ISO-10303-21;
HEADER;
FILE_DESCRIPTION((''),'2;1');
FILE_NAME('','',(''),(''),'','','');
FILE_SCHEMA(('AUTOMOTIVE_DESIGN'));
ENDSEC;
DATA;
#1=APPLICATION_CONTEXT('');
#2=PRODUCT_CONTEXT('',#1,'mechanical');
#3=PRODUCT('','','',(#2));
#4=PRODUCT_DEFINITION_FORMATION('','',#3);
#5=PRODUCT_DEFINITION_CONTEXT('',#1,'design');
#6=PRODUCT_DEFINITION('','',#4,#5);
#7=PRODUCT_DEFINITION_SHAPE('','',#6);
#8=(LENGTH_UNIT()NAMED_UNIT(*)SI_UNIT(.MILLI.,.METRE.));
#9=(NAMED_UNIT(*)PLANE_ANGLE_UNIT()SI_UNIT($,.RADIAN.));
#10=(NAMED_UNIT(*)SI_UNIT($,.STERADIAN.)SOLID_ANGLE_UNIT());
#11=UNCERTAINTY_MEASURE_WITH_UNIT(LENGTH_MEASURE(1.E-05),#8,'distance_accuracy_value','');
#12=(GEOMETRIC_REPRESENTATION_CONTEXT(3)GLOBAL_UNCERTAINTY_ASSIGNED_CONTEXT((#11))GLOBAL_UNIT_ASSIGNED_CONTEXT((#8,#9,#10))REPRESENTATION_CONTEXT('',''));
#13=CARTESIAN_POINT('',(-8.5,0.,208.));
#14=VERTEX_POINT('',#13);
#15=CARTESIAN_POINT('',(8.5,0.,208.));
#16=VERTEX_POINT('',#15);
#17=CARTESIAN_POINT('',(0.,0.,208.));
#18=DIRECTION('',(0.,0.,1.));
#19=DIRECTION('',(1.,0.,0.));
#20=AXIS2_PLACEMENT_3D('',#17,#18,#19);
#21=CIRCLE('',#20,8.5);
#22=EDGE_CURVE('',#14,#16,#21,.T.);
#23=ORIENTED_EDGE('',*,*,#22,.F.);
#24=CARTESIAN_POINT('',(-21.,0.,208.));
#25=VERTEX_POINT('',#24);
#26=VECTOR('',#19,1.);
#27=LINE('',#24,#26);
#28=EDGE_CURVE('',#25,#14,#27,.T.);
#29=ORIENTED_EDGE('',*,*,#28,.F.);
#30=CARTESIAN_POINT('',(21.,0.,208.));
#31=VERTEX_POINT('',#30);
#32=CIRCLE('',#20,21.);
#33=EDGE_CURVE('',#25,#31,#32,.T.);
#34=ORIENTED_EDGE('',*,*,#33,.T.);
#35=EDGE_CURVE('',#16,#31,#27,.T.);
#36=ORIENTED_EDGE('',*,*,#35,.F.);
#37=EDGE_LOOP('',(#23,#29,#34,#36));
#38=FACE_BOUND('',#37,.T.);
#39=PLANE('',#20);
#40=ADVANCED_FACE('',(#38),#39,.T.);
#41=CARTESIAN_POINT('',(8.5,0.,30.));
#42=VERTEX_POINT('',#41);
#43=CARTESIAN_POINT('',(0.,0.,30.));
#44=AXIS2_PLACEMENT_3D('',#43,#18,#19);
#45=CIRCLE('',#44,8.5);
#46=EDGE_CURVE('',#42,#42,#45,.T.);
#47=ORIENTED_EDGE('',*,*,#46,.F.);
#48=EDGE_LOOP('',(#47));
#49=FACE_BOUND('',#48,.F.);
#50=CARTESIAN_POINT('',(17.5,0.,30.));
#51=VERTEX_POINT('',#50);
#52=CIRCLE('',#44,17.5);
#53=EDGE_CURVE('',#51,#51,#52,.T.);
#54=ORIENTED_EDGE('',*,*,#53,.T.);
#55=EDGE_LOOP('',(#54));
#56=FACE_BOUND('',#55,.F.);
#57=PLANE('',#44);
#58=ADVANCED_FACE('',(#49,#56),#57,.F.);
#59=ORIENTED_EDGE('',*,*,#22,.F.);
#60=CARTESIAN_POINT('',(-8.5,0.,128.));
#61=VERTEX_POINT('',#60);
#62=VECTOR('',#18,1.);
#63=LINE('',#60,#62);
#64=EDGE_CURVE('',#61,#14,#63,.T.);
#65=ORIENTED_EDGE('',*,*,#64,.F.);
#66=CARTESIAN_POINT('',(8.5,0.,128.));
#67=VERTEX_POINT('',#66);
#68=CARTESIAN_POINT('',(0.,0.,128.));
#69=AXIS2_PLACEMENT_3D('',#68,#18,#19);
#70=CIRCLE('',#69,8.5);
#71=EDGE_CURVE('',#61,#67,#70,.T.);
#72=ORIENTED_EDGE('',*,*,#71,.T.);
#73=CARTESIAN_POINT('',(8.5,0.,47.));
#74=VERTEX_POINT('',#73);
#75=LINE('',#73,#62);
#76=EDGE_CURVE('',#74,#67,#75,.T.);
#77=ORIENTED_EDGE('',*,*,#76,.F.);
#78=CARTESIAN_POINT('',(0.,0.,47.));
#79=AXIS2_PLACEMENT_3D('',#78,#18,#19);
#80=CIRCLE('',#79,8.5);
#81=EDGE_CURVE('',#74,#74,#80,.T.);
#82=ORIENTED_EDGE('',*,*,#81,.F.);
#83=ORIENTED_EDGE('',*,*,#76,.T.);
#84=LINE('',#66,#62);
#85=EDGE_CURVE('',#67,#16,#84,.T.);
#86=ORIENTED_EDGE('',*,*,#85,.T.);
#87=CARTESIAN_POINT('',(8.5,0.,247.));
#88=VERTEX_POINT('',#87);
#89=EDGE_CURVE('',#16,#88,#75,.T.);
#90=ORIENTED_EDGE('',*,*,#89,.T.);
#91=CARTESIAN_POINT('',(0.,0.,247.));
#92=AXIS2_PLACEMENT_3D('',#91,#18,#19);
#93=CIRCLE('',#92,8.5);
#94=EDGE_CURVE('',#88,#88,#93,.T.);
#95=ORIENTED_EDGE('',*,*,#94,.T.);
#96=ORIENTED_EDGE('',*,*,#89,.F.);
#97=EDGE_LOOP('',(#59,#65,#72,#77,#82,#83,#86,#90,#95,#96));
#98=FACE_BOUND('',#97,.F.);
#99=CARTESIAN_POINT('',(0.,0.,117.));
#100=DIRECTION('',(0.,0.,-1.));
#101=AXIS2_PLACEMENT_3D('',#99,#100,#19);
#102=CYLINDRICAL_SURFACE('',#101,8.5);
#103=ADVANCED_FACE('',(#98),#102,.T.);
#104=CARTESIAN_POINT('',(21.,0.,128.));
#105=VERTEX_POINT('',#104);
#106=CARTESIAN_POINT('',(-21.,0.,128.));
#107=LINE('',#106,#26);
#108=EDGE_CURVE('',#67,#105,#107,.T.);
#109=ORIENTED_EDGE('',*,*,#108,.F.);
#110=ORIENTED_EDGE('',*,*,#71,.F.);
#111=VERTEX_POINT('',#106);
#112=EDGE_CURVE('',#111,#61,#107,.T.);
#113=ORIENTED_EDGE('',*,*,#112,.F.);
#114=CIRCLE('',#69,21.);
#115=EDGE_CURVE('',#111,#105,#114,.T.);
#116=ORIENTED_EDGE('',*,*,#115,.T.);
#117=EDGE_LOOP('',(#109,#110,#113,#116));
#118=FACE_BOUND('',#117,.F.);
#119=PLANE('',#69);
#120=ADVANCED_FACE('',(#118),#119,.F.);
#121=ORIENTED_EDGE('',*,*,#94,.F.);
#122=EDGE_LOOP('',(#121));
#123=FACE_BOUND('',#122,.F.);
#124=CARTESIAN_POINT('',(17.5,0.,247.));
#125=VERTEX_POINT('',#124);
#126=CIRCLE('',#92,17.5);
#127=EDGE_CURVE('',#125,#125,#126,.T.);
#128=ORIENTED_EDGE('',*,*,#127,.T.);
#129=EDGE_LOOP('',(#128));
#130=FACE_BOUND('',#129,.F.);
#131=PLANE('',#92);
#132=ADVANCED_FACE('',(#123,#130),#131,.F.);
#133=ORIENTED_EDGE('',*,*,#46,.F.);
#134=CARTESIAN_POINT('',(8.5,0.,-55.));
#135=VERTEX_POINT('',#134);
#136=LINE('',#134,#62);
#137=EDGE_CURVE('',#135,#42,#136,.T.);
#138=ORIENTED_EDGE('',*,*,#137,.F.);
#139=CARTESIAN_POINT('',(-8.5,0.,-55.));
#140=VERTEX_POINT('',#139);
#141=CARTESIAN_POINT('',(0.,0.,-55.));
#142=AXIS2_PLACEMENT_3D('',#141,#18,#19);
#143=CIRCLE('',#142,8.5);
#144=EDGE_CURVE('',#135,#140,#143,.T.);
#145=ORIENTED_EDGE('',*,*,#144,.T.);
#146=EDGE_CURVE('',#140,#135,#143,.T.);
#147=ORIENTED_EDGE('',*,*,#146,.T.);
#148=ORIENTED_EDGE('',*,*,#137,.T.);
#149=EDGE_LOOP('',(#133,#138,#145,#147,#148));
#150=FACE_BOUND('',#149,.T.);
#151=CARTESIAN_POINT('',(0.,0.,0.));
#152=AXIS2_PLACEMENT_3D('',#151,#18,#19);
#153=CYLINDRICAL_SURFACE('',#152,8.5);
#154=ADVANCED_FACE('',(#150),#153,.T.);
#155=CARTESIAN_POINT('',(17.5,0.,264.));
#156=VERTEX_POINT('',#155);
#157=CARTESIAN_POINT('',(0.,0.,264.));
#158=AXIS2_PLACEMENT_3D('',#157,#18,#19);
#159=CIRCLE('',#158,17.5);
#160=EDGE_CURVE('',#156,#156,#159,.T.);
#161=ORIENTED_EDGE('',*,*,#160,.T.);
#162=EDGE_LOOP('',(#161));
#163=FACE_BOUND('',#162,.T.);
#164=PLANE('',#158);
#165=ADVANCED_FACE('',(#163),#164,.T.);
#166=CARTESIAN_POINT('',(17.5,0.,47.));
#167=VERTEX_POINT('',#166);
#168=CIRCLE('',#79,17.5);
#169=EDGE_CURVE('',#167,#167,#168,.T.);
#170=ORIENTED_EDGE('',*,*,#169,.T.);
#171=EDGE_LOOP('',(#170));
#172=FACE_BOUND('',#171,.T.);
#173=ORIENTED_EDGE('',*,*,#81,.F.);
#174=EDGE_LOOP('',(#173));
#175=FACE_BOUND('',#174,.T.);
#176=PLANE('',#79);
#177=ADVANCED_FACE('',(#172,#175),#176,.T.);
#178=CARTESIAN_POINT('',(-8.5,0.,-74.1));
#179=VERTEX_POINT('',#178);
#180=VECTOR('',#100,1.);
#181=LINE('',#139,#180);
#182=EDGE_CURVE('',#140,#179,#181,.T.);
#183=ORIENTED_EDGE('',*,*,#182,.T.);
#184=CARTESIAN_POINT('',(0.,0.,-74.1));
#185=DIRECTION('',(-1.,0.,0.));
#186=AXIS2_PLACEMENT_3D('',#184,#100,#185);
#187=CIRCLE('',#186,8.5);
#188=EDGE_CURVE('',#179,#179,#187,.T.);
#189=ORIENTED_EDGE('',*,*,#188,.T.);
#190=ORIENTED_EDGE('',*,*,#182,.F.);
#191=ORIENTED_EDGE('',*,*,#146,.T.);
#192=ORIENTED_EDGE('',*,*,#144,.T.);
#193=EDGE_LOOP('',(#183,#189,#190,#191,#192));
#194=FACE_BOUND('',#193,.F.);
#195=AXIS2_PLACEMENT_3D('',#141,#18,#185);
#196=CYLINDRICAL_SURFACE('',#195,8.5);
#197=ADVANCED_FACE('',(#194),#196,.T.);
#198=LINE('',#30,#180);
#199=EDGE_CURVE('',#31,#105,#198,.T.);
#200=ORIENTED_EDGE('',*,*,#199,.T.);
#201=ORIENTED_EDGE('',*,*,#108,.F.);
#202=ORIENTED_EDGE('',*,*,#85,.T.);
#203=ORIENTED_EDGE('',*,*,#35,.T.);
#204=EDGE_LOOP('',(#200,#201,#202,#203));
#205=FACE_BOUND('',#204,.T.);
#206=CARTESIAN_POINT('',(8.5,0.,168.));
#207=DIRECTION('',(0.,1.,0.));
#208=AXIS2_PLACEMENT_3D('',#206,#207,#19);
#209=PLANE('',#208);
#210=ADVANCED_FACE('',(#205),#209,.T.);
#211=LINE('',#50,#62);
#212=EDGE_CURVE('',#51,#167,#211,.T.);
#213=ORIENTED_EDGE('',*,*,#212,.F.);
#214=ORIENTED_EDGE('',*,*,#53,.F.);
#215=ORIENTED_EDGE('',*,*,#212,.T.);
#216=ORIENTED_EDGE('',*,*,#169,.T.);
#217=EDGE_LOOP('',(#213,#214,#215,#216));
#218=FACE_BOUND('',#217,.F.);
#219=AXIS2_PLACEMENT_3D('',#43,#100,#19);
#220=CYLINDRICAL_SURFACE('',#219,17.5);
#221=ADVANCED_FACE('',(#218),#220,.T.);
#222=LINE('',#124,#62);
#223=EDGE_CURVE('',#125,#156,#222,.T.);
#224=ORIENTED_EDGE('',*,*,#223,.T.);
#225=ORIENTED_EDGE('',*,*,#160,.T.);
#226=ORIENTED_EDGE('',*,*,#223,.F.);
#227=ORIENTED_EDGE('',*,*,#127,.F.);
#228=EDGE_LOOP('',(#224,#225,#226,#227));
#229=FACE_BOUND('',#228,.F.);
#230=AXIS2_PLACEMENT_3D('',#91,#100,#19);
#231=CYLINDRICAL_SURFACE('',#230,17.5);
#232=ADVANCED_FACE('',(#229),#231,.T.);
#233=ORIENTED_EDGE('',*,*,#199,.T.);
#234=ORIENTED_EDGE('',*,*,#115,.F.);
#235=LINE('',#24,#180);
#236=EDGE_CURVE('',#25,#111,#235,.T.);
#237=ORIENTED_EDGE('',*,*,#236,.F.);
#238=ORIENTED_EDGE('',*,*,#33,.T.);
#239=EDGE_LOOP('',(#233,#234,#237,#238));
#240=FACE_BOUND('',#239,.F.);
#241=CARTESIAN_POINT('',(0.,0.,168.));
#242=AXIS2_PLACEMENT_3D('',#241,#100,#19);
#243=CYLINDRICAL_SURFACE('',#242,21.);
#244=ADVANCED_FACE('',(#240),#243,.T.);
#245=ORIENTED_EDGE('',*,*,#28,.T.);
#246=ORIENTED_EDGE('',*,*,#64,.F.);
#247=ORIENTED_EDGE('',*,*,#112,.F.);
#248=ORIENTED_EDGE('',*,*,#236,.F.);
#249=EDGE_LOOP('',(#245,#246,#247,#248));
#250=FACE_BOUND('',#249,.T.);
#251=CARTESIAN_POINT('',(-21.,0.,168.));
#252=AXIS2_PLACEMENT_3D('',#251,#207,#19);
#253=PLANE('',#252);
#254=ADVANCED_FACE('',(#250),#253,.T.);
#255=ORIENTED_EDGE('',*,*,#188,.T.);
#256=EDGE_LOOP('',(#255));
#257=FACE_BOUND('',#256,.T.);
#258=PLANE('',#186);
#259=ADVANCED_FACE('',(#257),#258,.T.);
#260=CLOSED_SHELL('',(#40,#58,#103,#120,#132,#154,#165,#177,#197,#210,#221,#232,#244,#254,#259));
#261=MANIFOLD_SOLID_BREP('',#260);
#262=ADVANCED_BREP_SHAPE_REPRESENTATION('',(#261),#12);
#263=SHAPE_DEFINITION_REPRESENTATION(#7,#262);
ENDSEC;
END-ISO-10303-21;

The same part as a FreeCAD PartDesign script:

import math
import FreeCAD as App
import Part
import Sketcher

V = App.Vector
Q = App.Units.Quantity

doc = App.newDocument("Part")
body = doc.addObject("PartDesign::Body", "Body")

# Sketch on XY plane
sketch1 = body.newObject("Sketcher::SketchObject", "Sketch")
sketch1.AttachmentSupport = (doc.getObject("XY_Plane"), [""])
sketch1.MapMode = "FlatFace"
sketch1.addGeometry(Part.Circle(V(0, 0, 0), V(0, 0, 1), 8), False)
sketch1.addConstraint([
    Sketcher.Constraint("Coincident", 0, 3, -1, 1),
    Sketcher.Constraint("Diameter", 0, Q("17 mm")),
])
pad1 = body.newObject("PartDesign::Pad", "Pad")
pad1.Profile = sketch1
pad1.Length = 55
pad1.Reversed = True

# Sketch on XY plane
sketch2 = body.newObject("Sketcher::SketchObject", "Sketch001")
sketch2.AttachmentSupport = (doc.getObject("XY_Plane"), [""])
sketch2.MapMode = "FlatFace"
sketch2.addGeometry(Part.Circle(V(0, 0, 0), V(0, 0, 1), 8), False)
sketch2.addConstraint([
    Sketcher.Constraint("Coincident", 0, 3, -1, 1),
    Sketcher.Constraint("Diameter", 0, Q("17 mm")),
])
pad2 = body.newObject("PartDesign::Pad", "Pad001")
pad2.Profile = sketch2
pad2.Length = 30

# Sketch on XY plane
sketch3 = body.newObject("Sketcher::SketchObject", "Sketch002")
sketch3.AttachmentSupport = (doc.getObject("XY_Plane"), [""])
sketch3.MapMode = "FlatFace"
sketch3.AttachmentOffset = App.Placement(V(0, 0, 30), App.Rotation())
sketch3.addGeometry(Part.Circle(V(0, 0, 0), V(0, 0, 1), 18), False)
sketch3.addConstraint([
    Sketcher.Constraint("Coincident", 0, 3, -1, 1),
    Sketcher.Constraint("Diameter", 0, Q("35 mm")),
])
pad3 = body.newObject("PartDesign::Pad", "Pad002")
pad3.Profile = sketch3
pad3.Length = 17

# Sketch on XY plane
sketch4 = body.newObject("Sketcher::SketchObject", "Sketch003")
sketch4.AttachmentSupport = (doc.getObject("XY_Plane"), [""])
sketch4.MapMode = "FlatFace"
sketch4.AttachmentOffset = App.Placement(V(0, 0, 47), App.Rotation())
sketch4.addGeometry(Part.Circle(V(0, 0, 0), V(0, 0, 1), 8), False)
sketch4.addConstraint([
    Sketcher.Constraint("Coincident", 0, 3, -1, 1),
    Sketcher.Constraint("Diameter", 0, Q("17 mm")),
])
pad4 = body.newObject("PartDesign::Pad", "Pad003")
pad4.Profile = sketch4
pad4.Length = 15

# Sketch on XY plane
sketch5 = body.newObject("Sketcher::SketchObject", "Sketch004")
sketch5.AttachmentSupport = (doc.getObject("XY_Plane"), [""])
sketch5.MapMode = "FlatFace"
sketch5.AttachmentOffset = App.Placement(V(0, 0, 62), App.Rotation())
sketch5.addGeometry(Part.Circle(V(0, 0, 0), V(0, 0, 1), 8), False)
sketch5.addConstraint([
    Sketcher.Constraint("Coincident", 0, 3, -1, 1),
    Sketcher.Constraint("Diameter", 0, Q("17 mm")),
])
pad5 = body.newObject("PartDesign::Pad", "Pad004")
pad5.Profile = sketch5
pad5.Length = 55

# Sketch on XY plane
sketch6 = body.newObject("Sketcher::SketchObject", "Sketch005")
sketch6.AttachmentSupport = (doc.getObject("XY_Plane"), [""])
sketch6.MapMode = "FlatFace"
sketch6.AttachmentOffset = App.Placement(V(0, 0, 117), App.Rotation())
sketch6.addGeometry(Part.Circle(V(0, 0, 0), V(0, 0, 1), 8), False)
sketch6.addConstraint([
    Sketcher.Constraint("Coincident", 0, 3, -1, 1),
    Sketcher.Constraint("Diameter", 0, Q("17 mm")),
])
pad6 = body.newObject("PartDesign::Pad", "Pad005")
pad6.Profile = sketch6
pad6.Length = 130

# Sketch on XY plane
sketch7 = body.newObject("Sketcher::SketchObject", "Sketch006")
sketch7.AttachmentSupport = (doc.getObject("XY_Plane"), [""])
sketch7.MapMode = "FlatFace"
sketch7.AttachmentOffset = App.Placement(V(0, 0, 247), App.Rotation())
sketch7.addGeometry(Part.Circle(V(0, 0, 0), V(0, 0, 1), 18), False)
sketch7.addConstraint([
    Sketcher.Constraint("Coincident", 0, 3, -1, 1),
    Sketcher.Constraint("Diameter", 0, Q("35 mm")),
])
pad7 = body.newObject("PartDesign::Pad", "Pad006")
pad7.Profile = sketch7
pad7.Length = 17

# Sketch on XY plane
sketch8 = body.newObject("Sketcher::SketchObject", "Sketch007")
sketch8.AttachmentSupport = (doc.getObject("XY_Plane"), [""])
sketch8.MapMode = "FlatFace"
sketch8.AttachmentOffset = App.Placement(V(0, 0, -55), App.Rotation())
sketch8.addGeometry(Part.Circle(V(0, 0, 0), V(0, 0, 1), 8), False)
sketch8.addConstraint([
    Sketcher.Constraint("Coincident", 0, 3, -1, 1),
    Sketcher.Constraint("Diameter", 0, Q("17 mm")),
])
pad8 = body.newObject("PartDesign::Pad", "Pad007")
pad8.Profile = sketch8
pad8.Length = 19.1
pad8.Reversed = True

# Sketch on XY plane
sketch9 = body.newObject("Sketcher::SketchObject", "Sketch008")
sketch9.AttachmentSupport = (doc.getObject("XY_Plane"), [""])
sketch9.MapMode = "FlatFace"
sketch9.AttachmentOffset = App.Placement(V(0, 0, 168), App.Rotation())
sketch9.addGeometry([
    Part.LineSegment(V(21, 0, 0), V(8, 0, 0)),
    Part.ArcOfCircle(Part.Circle(V(0, 0, 0), V(0, 0, 1), 8), math.radians(180), math.radians(360)),
    Part.LineSegment(V(-8, 0, 0), V(-21, 0, 0)),
    Part.ArcOfCircle(Part.Circle(V(0, 0, 0), V(0, 0, 1), 21), math.radians(180), math.radians(360)),
], False)
sketch9.addConstraint([
    Sketcher.Constraint("Coincident", 0, 2, 1, 2),
    Sketcher.Constraint("Coincident", 1, 1, 2, 1),
    Sketcher.Constraint("Coincident", 2, 2, 3, 1),
    Sketcher.Constraint("Coincident", 3, 2, 0, 1),
    Sketcher.Constraint("Horizontal", 0),
    Sketcher.Constraint("Horizontal", 2),
    Sketcher.Constraint("Coincident", 1, 3, -1, 1),
    Sketcher.Constraint("Coincident", 3, 3, -1, 1),
    Sketcher.Constraint("PointOnObject", 0, 2, -1),
    Sketcher.Constraint("PointOnObject", 1, 1, -1),
    Sketcher.Constraint("Radius", 3, Q("21 mm")),
    Sketcher.Constraint("Radius", 1, Q("8.5 mm")),
])
pad9 = body.newObject("PartDesign::Pad", "Pad008")
pad9.Profile = sketch9
pad9.Length = 80
pad9.Midplane = True

doc.recompute()
